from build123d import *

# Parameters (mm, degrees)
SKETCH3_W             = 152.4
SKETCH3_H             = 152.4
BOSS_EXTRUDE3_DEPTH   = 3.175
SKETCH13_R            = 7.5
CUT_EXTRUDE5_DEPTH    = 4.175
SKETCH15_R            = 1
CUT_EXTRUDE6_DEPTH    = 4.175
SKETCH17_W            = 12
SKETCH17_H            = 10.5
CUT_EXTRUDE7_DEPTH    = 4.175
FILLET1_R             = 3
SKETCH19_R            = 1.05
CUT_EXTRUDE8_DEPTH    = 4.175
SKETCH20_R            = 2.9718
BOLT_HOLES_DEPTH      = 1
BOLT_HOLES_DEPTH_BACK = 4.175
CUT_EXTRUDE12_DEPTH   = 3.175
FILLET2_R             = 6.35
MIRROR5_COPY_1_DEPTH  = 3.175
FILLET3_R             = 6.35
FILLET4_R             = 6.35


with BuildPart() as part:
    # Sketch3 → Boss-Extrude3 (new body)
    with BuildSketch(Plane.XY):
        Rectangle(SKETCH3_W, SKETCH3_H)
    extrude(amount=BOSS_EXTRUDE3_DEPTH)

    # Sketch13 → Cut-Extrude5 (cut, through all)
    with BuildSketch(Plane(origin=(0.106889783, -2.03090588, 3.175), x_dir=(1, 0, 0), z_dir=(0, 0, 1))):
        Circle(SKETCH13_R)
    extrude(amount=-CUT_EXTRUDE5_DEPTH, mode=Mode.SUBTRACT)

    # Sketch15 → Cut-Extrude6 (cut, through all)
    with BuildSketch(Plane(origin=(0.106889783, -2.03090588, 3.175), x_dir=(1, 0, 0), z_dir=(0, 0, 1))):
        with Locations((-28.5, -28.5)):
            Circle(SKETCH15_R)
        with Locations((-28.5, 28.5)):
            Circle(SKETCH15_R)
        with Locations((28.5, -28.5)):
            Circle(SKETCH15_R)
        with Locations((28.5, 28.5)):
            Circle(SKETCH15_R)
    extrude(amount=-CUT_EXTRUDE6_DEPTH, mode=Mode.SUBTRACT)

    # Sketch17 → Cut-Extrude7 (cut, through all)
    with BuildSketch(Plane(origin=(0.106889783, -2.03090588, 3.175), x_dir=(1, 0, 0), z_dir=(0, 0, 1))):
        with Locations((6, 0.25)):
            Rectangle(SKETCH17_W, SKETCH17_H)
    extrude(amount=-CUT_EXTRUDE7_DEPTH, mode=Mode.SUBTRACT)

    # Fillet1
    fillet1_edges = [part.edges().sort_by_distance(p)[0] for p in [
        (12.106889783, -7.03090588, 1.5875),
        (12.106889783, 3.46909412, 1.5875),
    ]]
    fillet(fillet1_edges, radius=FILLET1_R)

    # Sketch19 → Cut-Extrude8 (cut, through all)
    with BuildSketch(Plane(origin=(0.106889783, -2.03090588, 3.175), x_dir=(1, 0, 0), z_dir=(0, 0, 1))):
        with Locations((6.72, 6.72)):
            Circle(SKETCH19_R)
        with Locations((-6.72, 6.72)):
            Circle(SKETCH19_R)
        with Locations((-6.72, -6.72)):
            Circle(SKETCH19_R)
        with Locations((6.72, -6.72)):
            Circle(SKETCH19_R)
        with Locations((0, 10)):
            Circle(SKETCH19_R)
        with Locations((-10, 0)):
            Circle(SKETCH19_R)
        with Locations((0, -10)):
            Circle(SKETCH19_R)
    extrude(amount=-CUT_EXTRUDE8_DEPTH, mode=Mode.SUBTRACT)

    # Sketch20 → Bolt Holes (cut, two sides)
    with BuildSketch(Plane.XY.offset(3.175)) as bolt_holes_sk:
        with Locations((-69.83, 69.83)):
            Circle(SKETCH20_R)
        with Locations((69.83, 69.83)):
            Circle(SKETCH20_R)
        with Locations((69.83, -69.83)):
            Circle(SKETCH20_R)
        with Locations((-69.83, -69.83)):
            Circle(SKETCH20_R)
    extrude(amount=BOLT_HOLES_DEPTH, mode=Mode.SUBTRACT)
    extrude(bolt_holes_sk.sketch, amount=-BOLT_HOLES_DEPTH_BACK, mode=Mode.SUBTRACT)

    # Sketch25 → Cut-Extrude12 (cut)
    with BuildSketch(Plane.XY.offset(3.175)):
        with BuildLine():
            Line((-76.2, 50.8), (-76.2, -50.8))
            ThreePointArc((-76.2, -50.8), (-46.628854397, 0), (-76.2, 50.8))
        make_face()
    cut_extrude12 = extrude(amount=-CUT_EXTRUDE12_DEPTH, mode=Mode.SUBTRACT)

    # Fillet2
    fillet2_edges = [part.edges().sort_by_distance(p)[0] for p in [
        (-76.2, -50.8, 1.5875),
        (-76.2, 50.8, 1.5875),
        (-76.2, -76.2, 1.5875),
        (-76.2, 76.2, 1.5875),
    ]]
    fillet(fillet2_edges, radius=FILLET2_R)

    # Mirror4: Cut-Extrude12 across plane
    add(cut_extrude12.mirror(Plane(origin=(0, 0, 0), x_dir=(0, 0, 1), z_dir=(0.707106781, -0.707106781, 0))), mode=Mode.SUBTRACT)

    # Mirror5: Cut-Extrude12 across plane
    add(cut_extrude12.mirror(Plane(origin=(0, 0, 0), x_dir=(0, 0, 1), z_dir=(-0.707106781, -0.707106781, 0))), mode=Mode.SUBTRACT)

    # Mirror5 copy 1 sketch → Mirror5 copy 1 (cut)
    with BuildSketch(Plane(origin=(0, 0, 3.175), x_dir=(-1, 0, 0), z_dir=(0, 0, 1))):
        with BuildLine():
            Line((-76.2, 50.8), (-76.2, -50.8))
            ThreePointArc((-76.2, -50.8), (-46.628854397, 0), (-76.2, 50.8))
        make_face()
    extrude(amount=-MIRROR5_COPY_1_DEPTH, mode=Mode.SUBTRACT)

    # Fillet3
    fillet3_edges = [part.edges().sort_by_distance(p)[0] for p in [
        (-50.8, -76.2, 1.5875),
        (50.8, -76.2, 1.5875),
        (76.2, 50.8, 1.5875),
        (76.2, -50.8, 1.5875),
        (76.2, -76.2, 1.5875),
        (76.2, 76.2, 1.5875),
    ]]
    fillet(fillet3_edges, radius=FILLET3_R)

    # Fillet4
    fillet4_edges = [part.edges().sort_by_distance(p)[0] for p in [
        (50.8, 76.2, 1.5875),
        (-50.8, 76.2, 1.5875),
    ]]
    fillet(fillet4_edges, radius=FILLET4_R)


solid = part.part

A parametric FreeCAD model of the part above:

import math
import FreeCAD as App
import Part
import Sketcher

V = App.Vector
Q = App.Units.Quantity


def edges_at(feature, points):
    """Names of the edges that pass closest to the given points."""
    edges = feature.Shape.Edges
    near = lambda p: min(range(len(edges)), key=lambda i: edges[i].distToShape(Part.Vertex(*p))[0])
    return sorted({f"Edge{near(p) + 1}" for p in points})


def add_polygon(sketch, points):
    """Adds a closed chain of lines whose ends are joined by coincident constraints."""
    first, n = sketch.GeometryCount, len(points)
    for a, b in zip(points, points[1:] + points[:1]):
        sketch.addGeometry(Part.LineSegment(App.Vector(*a, 0), App.Vector(*b, 0)), False)
    for i in range(n):
        sketch.addConstraint(Sketcher.Constraint("Coincident", first + i, 2, first + (i + 1) % n, 1))

doc = App.newDocument("Part")
body = doc.addObject("PartDesign::Body", "Body")

# Sketch on XY plane
sketch1 = body.newObject("Sketcher::SketchObject", "Sketch")
sketch1.AttachmentSupport = (doc.getObject("XY_Plane"), [""])
sketch1.MapMode = "FlatFace"
add_polygon(sketch1, [(-76, 76), (-76, -76), (76, -76), (76, 76)])  # lines 0-3
sketch1.addConstraint([
    Sketcher.Constraint("Vertical", 0),
    Sketcher.Constraint("Horizontal", 1),
    Sketcher.Constraint("Vertical", 2),
    Sketcher.Constraint("Horizontal", 3),
    Sketcher.Constraint("Symmetric", 0, 2, 2, 2, -1, 1),
    Sketcher.Constraint("Equal", 3, 0),
    Sketcher.Constraint("DistanceX", 1, 1, 1, 2, Q("152.4 mm")),
])
pad1 = body.newObject("PartDesign::Pad", "Pad")
pad1.Profile = sketch1
pad1.Length = 3.175

# Sketch on XY plane
sketch2 = body.newObject("Sketcher::SketchObject", "Sketch001")
sketch2.AttachmentSupport = (doc.getObject("XY_Plane"), [""])
sketch2.MapMode = "FlatFace"
sketch2.AttachmentOffset = App.Placement(V(0, 0, 3.175), App.Rotation())
sketch2.addGeometry(Part.Circle(V(0, -2, 0), V(0, 0, 1), 8), False)
sketch2.addConstraint([
    Sketcher.Constraint("Diameter", 0, Q("15 mm")),
    Sketcher.Constraint("DistanceX", -1, 1, 0, 3, Q("0.10689 mm")),
    Sketcher.Constraint("DistanceY", 0, 3, -1, 1, Q("2.030906 mm")),
])
pocket1 = body.newObject("PartDesign::Pocket", "Pocket")
pocket1.Profile = sketch2
pocket1.Type = "ThroughAll"

# Sketch on XY plane
sketch3 = body.newObject("Sketcher::SketchObject", "Sketch002")
sketch3.AttachmentSupport = (doc.getObject("XY_Plane"), [""])
sketch3.MapMode = "FlatFace"
sketch3.AttachmentOffset = App.Placement(V(0, 0, 3.175), App.Rotation())
sketch3.addGeometry([
    Part.Circle(V(-28.4, -30.5, 0), V(0, 0, 1), 1),
    Part.Circle(V(-28.4, 26.5, 0), V(0, 0, 1), 1),
    Part.Circle(V(28.6, -30.5, 0), V(0, 0, 1), 1),
    Part.Circle(V(28.6, 26.5, 0), V(0, 0, 1), 1),
], False)
sketch3.addConstraint([
    Sketcher.Constraint("Equal", 0, 1),
    Sketcher.Constraint("Equal", 1, 2),
    Sketcher.Constraint("Equal", 2, 3),
    Sketcher.Constraint("Horizontal", 0, 3, 2, 3),
    Sketcher.Constraint("Horizontal", 1, 3, 3, 3),
    Sketcher.Constraint("Vertical", 0, 3, 1, 3),
    Sketcher.Constraint("Vertical", 2, 3, 3, 3),
    Sketcher.Constraint("Diameter", 0, Q("2 mm")),
    Sketcher.Constraint("DistanceY", 0, 3, 1, 3, Q("57 mm")),
    Sketcher.Constraint("DistanceX", 0, 3, 2, 3, Q("57 mm")),
    Sketcher.Constraint("DistanceX", 0, 3, -1, 1, Q("28.39311 mm")),
    Sketcher.Constraint("DistanceY", 0, 3, -1, 1, Q("30.530906 mm")),
])
pocket2 = body.newObject("PartDesign::Pocket", "Pocket001")
pocket2.Profile = sketch3
pocket2.Type = "ThroughAll"

# Sketch on XY plane
sketch4 = body.newObject("Sketcher::SketchObject", "Sketch003")
sketch4.AttachmentSupport = (doc.getObject("XY_Plane"), [""])
sketch4.MapMode = "FlatFace"
sketch4.AttachmentOffset = App.Placement(V(0, 0, 3.175), App.Rotation())
add_polygon(sketch4, [(0, 3), (0, -7), (12, -7), (12, 3)])  # lines 0-3
sketch4.addConstraint([
    Sketcher.Constraint("Vertical", 0),
    Sketcher.Constraint("Horizontal", 1),
    Sketcher.Constraint("Vertical", 2),
    Sketcher.Constraint("Horizontal", 3),
    Sketcher.Constraint("DistanceX", 1, 1, 1, 2, Q("12 mm")),
    Sketcher.Constraint("DistanceY", 0, 2, 0, 1, Q("10.5 mm")),
    Sketcher.Constraint("DistanceX", -1, 1, 0, 2, Q("0.10689 mm")),
    Sketcher.Constraint("DistanceY", 0, 2, -1, 1, Q("7.030906 mm")),
])
pocket3 = body.newObject("PartDesign::Pocket", "Pocket002")
pocket3.Profile = sketch4
pocket3.Type = "ThroughAll"
doc.recompute()

fillet = body.newObject("PartDesign::Fillet", "Fillet")
fillet.Base = (pocket3, edges_at(pocket3, [(12.107, -7.031, 1.587), (12.107, 3.469, 1.587)]))
fillet.Radius = 3

# Sketch on XY plane
sketch5 = body.newObject("Sketcher::SketchObject", "Sketch004")
sketch5.AttachmentSupport = (doc.getObject("XY_Plane"), [""])
sketch5.MapMode = "FlatFace"
sketch5.AttachmentOffset = App.Placement(V(0, 0, 3.175), App.Rotation())
sketch5.addGeometry([
    Part.Circle(V(6.8, 4.7, 0), V(0, 0, 1), 1.1),  # 0
    Part.Circle(V(-6.6, 4.7, 0), V(0, 0, 1), 1.1),  # 1
    Part.Circle(V(-6.6, -8.8, 0), V(0, 0, 1), 1.1),  # 2
    Part.Circle(V(6.8, -8.8, 0), V(0, 0, 1), 1.1),  # 3
    Part.Circle(V(0.1, 8, 0), V(0, 0, 1), 1.1),  # 4
    Part.Circle(V(-9.9, -2, 0), V(0, 0, 1), 1.1),  # 5
    Part.Circle(V(0.1, -12, 0), V(0, 0, 1), 1.1),  # 6
], False)
sketch5.addConstraint([
    Sketcher.Constraint("Equal", 0, 1),
    Sketcher.Constraint("Equal", 1, 2),
    Sketcher.Constraint("Equal", 2, 3),
    Sketcher.Constraint("Equal", 3, 4),
    Sketcher.Constraint("Equal", 4, 5),
    Sketcher.Constraint("Equal", 5, 6),
    Sketcher.Constraint("Horizontal", 0, 3, 1, 3),
    Sketcher.Constraint("Horizontal", 2, 3, 3, 3),
    Sketcher.Constraint("Vertical", 1, 3, 2, 3),
    Sketcher.Constraint("Vertical", 0, 3, 3, 3),
    Sketcher.Constraint("Vertical", 4, 3, 6, 3),
    Sketcher.Constraint("Diameter", 0, Q("2.1 mm")),
    Sketcher.Constraint("DistanceX", 5, 3, 4, 3, Q("10 mm")),
    Sketcher.Constraint("DistanceY", 5, 3, 4, 3, Q("10 mm")),
    Sketcher.Constraint("DistanceY", 6, 3, 5, 3, Q("10 mm")),
    Sketcher.Constraint("DistanceX", 1, 3, 0, 3, Q("13.44 mm")),
    Sketcher.Constraint("DistanceY", 2, 3, 1, 3, Q("13.44 mm")),
    Sketcher.Constraint("DistanceX", 1, 3, 4, 3, Q("6.72 mm")),
    Sketcher.Constraint("DistanceY", 1, 3, 4, 3, Q("3.28 mm")),
    Sketcher.Constraint("DistanceX", -1, 1, 0, 3, Q("6.82689 mm")),
    Sketcher.Constraint("DistanceY", -1, 1, 0, 3, Q("4.689094 mm")),
])
pocket4 = body.newObject("PartDesign::Pocket", "Pocket003")
pocket4.Profile = sketch5
pocket4.Type = "ThroughAll"

# Sketch on XY plane
sketch6 = body.newObject("Sketcher::SketchObject", "Sketch005")
sketch6.AttachmentSupport = (doc.getObject("XY_Plane"), [""])
sketch6.MapMode = "FlatFace"
sketch6.AttachmentOffset = App.Placement(V(0, 0, 3.175), App.Rotation())
sketch6.addGeometry([
    Part.Circle(V(-69.8, 69.8, 0), V(0, 0, 1), 3),
    Part.Circle(V(69.8, 69.8, 0), V(0, 0, 1), 3),
    Part.Circle(V(69.8, -69.8, 0), V(0, 0, 1), 3),
    Part.Circle(V(-69.8, -69.8, 0), V(0, 0, 1), 3),
], False)
sketch6.addConstraint([
    Sketcher.Constraint("Equal", 0, 1),
    Sketcher.Constraint("Equal", 1, 2),
    Sketcher.Constraint("Equal", 2, 3),
    Sketcher.Constraint("Symmetric", 0, 3, 2, 3, -1, 1),
    Sketcher.Constraint("Symmetric", 1, 3, 3, 3, -1, 1),
    Sketcher.Constraint("Symmetric", 0, 3, 1, 3, -2),
    Sketcher.Constraint("Diameter", 0, Q("5.9436 mm")),
    Sketcher.Constraint("DistanceX", 0, 3, -1, 1, Q("69.83 mm")),
    Sketcher.Constraint("DistanceY", -1, 1, 0, 3, Q("69.83 mm")),
])
pocket5 = body.newObject("PartDesign::Pocket", "Pocket004")
pocket5.Profile = sketch6
pocket5.Type = "ThroughAll"
pocket5.Midplane = True

# Sketch on XY plane
sketch7 = body.newObject("Sketcher::SketchObject", "Sketch006")
sketch7.AttachmentSupport = (doc.getObject("XY_Plane"), [""])
sketch7.MapMode = "FlatFace"
sketch7.AttachmentOffset = App.Placement(V(0, 0, 3.175), App.Rotation())
sketch7.addGeometry([
    Part.LineSegment(V(-76, 51, 0), V(-76, -51, 0)),
    Part.ArcOfCircle(Part.Circle(V(-105, 0, 0), V(0, 0, 1), 58), math.radians(-60), math.radians(60)),
], False)
sketch7.addConstraint([
    Sketcher.Constraint("Coincident", 0, 1, 1, 2),
    Sketcher.Constraint("Coincident", 1, 1, 0, 2),
    Sketcher.Constraint("Vertical", 0),
    Sketcher.Constraint("PointOnObject", 1, 3, -1),
    Sketcher.Constraint("Radius", 1, Q("58.42 mm")),
    Sketcher.Constraint("DistanceY", 0, 2, 0, 1, Q("101.6 mm")),
    Sketcher.Constraint("DistanceX", 0, 1, -1, 1, Q("76.2 mm")),
])
pocket6 = body.newObject("PartDesign::Pocket", "Pocket005")
pocket6.Profile = sketch7
pocket6.Length = 3.175
doc.recompute()

fillet2 = body.newObject("PartDesign::Fillet", "Fillet001")
fillet2.Base = (pocket6, edges_at(pocket6, [
    (-76.2, -50.8, 1.587),
    (-76.2, 50.8, 1.587),
    (-76.2, -76.2, 1.587),
    (-76.2, 76.2, 1.587),
]))
fillet2.Radius = 6.35
doc.recompute()

datumplane = body.newObject("PartDesign::Plane", "DatumPlane")
datumplane.Placement = App.Placement(V(0, 0, 0), App.Rotation(V(-0.707106781, -0.707106781, 0), V(0, 0, -1), V(0.707106781, -0.707106781, 0), "ZXY"))
mirrored = body.newObject("PartDesign::Mirrored", "Mirrored")
mirrored.Originals = [pocket6]
mirrored.MirrorPlane = (datumplane, [""])
body.Tip = mirrored
doc.recompute()

datumplane2 = body.newObject("PartDesign::Plane", "DatumPlane001")
datumplane2.Placement = App.Placement(V(0, 0, 0), App.Rotation(V(-0.707106781, 0.707106781, 0), V(0, 0, -1), V(-0.707106781, -0.707106781, 0), "ZXY"))
mirrored2 = body.newObject("PartDesign::Mirrored", "Mirrored001")
mirrored2.Originals = [pocket6]
mirrored2.MirrorPlane = (datumplane2, [""])
body.Tip = mirrored2

# Sketch on XY plane
sketch8 = body.newObject("Sketcher::SketchObject", "Sketch007")
sketch8.AttachmentSupport = (doc.getObject("XY_Plane"), [""])
sketch8.MapMode = "FlatFace"
sketch8.AttachmentOffset = App.Placement(V(0, 0, 3.175), App.Rotation())
sketch8.addGeometry([
    Part.LineSegment(V(76, -51, 0), V(76, 51, 0)),
    Part.ArcOfCircle(Part.Circle(V(105, 0, 0), V(0, 0, 1), 58), math.radians(120), math.radians(240)),
], False)
sketch8.addConstraint([
    Sketcher.Constraint("Coincident", 0, 1, 1, 2),
    Sketcher.Constraint("Coincident", 1, 1, 0, 2),
    Sketcher.Constraint("Vertical", 0),
    Sketcher.Constraint("PointOnObject", 1, 3, -1),
    Sketcher.Constraint("Radius", 1, Q("58.42 mm")),
    Sketcher.Constraint("DistanceY", 0, 1, 0, 2, Q("101.6 mm")),
    Sketcher.Constraint("DistanceX", -1, 1, 0, 1, Q("76.2 mm")),
])
pocket7 = body.newObject("PartDesign::Pocket", "Pocket006")
pocket7.Profile = sketch8
pocket7.Length = 3.175
doc.recompute()

fillet3 = body.newObject("PartDesign::Fillet", "Fillet002")
fillet3.Base = (pocket7, edges_at(pocket7, [
    (-50.8, -76.2, 1.587),
    (50.8, -76.2, 1.587),
    (76.2, 50.8, 1.587),
    (76.2, -50.8, 1.587),
    (76.2, -76.2, 1.587),
    (76.2, 76.2, 1.587),
]))
fillet3.Radius = 6.35
doc.recompute()

fillet4 = body.newObject("PartDesign::Fillet", "Fillet003")
fillet4.Base = (fillet3, edges_at(fillet3, [(50.8, 76.2, 1.587), (-50.8, 76.2, 1.587)]))
fillet4.Radius = 6.35

doc.recompute()
